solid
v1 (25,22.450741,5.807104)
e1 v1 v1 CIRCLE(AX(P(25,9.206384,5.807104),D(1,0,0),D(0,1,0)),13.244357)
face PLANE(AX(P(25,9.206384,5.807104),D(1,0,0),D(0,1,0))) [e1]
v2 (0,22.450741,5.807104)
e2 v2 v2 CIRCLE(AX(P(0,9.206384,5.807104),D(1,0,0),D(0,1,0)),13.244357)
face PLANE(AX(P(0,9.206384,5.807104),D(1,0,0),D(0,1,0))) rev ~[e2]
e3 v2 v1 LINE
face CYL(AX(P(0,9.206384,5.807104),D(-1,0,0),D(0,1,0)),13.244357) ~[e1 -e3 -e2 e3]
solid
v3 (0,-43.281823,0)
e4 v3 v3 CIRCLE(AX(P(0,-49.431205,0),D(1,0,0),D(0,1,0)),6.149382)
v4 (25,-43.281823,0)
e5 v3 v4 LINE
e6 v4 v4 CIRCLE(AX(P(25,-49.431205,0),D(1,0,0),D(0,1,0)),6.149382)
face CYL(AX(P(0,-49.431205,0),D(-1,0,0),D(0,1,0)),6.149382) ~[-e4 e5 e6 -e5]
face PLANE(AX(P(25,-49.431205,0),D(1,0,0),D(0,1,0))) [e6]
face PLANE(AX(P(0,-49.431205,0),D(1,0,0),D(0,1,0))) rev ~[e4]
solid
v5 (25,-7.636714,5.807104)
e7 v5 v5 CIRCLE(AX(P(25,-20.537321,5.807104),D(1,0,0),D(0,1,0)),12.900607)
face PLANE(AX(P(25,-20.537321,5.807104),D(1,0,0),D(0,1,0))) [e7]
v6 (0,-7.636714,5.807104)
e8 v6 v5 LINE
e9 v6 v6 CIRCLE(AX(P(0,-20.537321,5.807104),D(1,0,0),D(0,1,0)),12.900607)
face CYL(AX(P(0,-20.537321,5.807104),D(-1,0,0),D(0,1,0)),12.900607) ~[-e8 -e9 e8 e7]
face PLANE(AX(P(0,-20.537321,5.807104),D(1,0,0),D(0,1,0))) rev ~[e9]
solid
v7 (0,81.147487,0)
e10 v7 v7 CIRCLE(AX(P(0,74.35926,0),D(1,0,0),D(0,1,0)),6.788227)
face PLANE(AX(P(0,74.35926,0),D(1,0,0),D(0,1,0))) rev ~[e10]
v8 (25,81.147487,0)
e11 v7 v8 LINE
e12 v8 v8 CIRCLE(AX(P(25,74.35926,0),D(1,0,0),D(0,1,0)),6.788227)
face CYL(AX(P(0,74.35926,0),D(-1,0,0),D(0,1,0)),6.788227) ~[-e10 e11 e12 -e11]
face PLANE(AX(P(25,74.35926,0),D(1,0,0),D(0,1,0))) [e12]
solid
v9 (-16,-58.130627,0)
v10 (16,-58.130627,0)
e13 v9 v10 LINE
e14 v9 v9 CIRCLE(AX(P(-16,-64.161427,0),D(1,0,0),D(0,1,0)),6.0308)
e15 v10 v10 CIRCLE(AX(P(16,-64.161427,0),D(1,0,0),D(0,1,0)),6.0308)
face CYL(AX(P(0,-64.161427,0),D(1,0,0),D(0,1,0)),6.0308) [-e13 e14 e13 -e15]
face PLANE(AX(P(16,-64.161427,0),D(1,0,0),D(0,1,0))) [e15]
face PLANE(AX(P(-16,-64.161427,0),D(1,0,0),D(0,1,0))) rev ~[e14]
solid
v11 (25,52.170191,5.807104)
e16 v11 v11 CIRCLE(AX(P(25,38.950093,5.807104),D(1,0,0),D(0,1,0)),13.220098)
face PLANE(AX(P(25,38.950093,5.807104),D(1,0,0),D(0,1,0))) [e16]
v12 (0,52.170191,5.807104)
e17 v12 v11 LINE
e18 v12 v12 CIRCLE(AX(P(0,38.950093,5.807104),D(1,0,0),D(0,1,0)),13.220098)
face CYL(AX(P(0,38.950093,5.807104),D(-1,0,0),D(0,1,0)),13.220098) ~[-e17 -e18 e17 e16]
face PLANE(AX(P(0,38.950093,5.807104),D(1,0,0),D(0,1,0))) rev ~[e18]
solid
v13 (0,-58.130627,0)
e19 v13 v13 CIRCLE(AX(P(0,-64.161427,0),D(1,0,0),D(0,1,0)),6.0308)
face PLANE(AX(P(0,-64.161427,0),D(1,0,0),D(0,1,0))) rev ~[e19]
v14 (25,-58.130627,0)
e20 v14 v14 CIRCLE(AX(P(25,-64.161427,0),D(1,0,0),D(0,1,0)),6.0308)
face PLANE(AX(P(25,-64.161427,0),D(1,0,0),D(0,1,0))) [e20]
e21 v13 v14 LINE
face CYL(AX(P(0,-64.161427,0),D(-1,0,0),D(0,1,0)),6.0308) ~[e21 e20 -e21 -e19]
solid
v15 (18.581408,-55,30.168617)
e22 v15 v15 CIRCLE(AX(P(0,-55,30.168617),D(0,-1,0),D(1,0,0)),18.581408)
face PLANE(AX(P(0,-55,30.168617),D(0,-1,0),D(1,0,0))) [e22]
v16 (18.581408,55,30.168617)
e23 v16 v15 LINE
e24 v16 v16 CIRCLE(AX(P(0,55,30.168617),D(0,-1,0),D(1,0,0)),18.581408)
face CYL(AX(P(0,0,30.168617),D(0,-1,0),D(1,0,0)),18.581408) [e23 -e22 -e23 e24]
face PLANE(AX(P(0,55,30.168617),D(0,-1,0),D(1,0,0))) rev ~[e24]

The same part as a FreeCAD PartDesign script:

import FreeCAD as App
import Part
import Sketcher

doc = App.newDocument("Part")
params = doc.addObject("Spreadsheet::Sheet", "Params")
for row, (alias, value) in enumerate([
    ("pad1_length", "55 mm"),
    ("pad1_length2", "55 mm"),
    ("pad2_length", "16 mm"),
    ("pad2_length2", "16 mm"),
    ("pad3_length", "25 mm"),
], start=1):
    params.set(f"A{row}", alias)
    params.set(f"B{row}", "=" + value)
    params.setAlias(f"B{row}", alias)

body = doc.addObject("PartDesign::Body", "Body")

sketch1 = body.newObject("Sketcher::SketchObject", "Sketch")
sketch1.AttachmentSupport = (doc.getObject("XZ_Plane"), [""])
sketch1.MapMode = "FlatFace"
sketch1.addGeometry(Part.Circle(App.Vector(0, 30, 0), App.Vector(0, 0, 1), 19), False)
sketch1.addConstraint([
    Sketcher.Constraint("PointOnObject", 0, 3, -2),
    Sketcher.Constraint("Diameter", 0, 37.162816),
    Sketcher.Constraint("DistanceY", -1, 1, 0, 3, 30.168617),
])
pad1 = body.newObject("PartDesign::Pad", "Pad")
pad1.Profile = sketch1
pad1.Type = "TwoLengths"
pad1.setExpression("Length", "Params.pad1_length")
pad1.setExpression("Length2", "Params.pad1_length2")
body2 = doc.addObject("PartDesign::Body", "Body001")

sketch2 = body2.newObject("Sketcher::SketchObject", "Sketch001")
sketch2.AttachmentSupport = (doc.getObject("YZ_Plane001"), [""])
sketch2.MapMode = "FlatFace"
sketch2.addGeometry(Part.Circle(App.Vector(-64, 0, 0), App.Vector(0, 0, 1), 6), False)
sketch2.addConstraint([
    Sketcher.Constraint("PointOnObject", 0, 3, -1),
    Sketcher.Constraint("Diameter", 0, 12.0616),
    Sketcher.Constraint("DistanceX", 0, 3, -1, 1, 64.161427),
])
pad2 = body2.newObject("PartDesign::Pad", "Pad001")
pad2.Profile = sketch2
pad2.Type = "TwoLengths"
pad2.setExpression("Length", "Params.pad2_length")
pad2.setExpression("Length2", "Params.pad2_length2")
body3 = doc.addObject("PartDesign::Body", "Body002")
body3.AllowCompound = True

sketch3 = body3.newObject("Sketcher::SketchObject", "Sketch002")
sketch3.AttachmentSupport = (doc.getObject("YZ_Plane002"), [""])
sketch3.MapMode = "FlatFace"
sketch3.addGeometry([
    Part.Circle(App.Vector(-64, 0, 0), App.Vector(0, 0, 1), 6),
    Part.Circle(App.Vector(-49, 0, 0), App.Vector(0, 0, 1), 6),
    Part.Circle(App.Vector(-21, 6, 0), App.Vector(0, 0, 1), 13),
    Part.Circle(App.Vector(9, 6, 0), App.Vector(0, 0, 1), 13),
    Part.Circle(App.Vector(39, 6, 0), App.Vector(0, 0, 1), 13),
    Part.Circle(App.Vector(74, 0, 0), App.Vector(0, 0, 1), 7),
], False)
sketch3.addConstraint([
    Sketcher.Constraint("PointOnObject", 0, 3, -1),
    Sketcher.Constraint("PointOnObject", 1, 3, -1),
    Sketcher.Constraint("PointOnObject", 5, 3, -1),
    Sketcher.Constraint("Horizontal", 2, 3, 3, 3),
    Sketcher.Constraint("Horizontal", 3, 3, 4, 3),
    Sketcher.Constraint("Diameter", 0, 12.0616),
    Sketcher.Constraint("Diameter", 1, 12.298764),
    Sketcher.Constraint("Diameter", 2, 25.801214),
    Sketcher.Constraint("Diameter", 3, 26.488714),
    Sketcher.Constraint("Diameter", 4, 26.440196),
    Sketcher.Constraint("Diameter", 5, 13.576454),
    Sketcher.Constraint("DistanceX", 1, 3, 4, 3, 88.381298),
    Sketcher.Constraint("DistanceX", 2, 3, -1, 1, 20.537321),
    Sketcher.Constraint("DistanceX", -1, 1, 5, 3, 74.35926),
    Sketcher.Constraint("DistanceX", 1, 3, 3, 3, 58.637589),
    Sketcher.Constraint("DistanceX", 0, 3, 3, 3, 73.367811),
    Sketcher.Constraint("DistanceX", 0, 3, -1, 1, 64.161427),
    Sketcher.Constraint("DistanceY", -1, 1, 2, 3, 5.807104),
])
pad3 = body3.newObject("PartDesign::Pad", "Pad002")
pad3.Profile = sketch3
pad3.setExpression("Length", "Params.pad3_length")

doc.recompute()
